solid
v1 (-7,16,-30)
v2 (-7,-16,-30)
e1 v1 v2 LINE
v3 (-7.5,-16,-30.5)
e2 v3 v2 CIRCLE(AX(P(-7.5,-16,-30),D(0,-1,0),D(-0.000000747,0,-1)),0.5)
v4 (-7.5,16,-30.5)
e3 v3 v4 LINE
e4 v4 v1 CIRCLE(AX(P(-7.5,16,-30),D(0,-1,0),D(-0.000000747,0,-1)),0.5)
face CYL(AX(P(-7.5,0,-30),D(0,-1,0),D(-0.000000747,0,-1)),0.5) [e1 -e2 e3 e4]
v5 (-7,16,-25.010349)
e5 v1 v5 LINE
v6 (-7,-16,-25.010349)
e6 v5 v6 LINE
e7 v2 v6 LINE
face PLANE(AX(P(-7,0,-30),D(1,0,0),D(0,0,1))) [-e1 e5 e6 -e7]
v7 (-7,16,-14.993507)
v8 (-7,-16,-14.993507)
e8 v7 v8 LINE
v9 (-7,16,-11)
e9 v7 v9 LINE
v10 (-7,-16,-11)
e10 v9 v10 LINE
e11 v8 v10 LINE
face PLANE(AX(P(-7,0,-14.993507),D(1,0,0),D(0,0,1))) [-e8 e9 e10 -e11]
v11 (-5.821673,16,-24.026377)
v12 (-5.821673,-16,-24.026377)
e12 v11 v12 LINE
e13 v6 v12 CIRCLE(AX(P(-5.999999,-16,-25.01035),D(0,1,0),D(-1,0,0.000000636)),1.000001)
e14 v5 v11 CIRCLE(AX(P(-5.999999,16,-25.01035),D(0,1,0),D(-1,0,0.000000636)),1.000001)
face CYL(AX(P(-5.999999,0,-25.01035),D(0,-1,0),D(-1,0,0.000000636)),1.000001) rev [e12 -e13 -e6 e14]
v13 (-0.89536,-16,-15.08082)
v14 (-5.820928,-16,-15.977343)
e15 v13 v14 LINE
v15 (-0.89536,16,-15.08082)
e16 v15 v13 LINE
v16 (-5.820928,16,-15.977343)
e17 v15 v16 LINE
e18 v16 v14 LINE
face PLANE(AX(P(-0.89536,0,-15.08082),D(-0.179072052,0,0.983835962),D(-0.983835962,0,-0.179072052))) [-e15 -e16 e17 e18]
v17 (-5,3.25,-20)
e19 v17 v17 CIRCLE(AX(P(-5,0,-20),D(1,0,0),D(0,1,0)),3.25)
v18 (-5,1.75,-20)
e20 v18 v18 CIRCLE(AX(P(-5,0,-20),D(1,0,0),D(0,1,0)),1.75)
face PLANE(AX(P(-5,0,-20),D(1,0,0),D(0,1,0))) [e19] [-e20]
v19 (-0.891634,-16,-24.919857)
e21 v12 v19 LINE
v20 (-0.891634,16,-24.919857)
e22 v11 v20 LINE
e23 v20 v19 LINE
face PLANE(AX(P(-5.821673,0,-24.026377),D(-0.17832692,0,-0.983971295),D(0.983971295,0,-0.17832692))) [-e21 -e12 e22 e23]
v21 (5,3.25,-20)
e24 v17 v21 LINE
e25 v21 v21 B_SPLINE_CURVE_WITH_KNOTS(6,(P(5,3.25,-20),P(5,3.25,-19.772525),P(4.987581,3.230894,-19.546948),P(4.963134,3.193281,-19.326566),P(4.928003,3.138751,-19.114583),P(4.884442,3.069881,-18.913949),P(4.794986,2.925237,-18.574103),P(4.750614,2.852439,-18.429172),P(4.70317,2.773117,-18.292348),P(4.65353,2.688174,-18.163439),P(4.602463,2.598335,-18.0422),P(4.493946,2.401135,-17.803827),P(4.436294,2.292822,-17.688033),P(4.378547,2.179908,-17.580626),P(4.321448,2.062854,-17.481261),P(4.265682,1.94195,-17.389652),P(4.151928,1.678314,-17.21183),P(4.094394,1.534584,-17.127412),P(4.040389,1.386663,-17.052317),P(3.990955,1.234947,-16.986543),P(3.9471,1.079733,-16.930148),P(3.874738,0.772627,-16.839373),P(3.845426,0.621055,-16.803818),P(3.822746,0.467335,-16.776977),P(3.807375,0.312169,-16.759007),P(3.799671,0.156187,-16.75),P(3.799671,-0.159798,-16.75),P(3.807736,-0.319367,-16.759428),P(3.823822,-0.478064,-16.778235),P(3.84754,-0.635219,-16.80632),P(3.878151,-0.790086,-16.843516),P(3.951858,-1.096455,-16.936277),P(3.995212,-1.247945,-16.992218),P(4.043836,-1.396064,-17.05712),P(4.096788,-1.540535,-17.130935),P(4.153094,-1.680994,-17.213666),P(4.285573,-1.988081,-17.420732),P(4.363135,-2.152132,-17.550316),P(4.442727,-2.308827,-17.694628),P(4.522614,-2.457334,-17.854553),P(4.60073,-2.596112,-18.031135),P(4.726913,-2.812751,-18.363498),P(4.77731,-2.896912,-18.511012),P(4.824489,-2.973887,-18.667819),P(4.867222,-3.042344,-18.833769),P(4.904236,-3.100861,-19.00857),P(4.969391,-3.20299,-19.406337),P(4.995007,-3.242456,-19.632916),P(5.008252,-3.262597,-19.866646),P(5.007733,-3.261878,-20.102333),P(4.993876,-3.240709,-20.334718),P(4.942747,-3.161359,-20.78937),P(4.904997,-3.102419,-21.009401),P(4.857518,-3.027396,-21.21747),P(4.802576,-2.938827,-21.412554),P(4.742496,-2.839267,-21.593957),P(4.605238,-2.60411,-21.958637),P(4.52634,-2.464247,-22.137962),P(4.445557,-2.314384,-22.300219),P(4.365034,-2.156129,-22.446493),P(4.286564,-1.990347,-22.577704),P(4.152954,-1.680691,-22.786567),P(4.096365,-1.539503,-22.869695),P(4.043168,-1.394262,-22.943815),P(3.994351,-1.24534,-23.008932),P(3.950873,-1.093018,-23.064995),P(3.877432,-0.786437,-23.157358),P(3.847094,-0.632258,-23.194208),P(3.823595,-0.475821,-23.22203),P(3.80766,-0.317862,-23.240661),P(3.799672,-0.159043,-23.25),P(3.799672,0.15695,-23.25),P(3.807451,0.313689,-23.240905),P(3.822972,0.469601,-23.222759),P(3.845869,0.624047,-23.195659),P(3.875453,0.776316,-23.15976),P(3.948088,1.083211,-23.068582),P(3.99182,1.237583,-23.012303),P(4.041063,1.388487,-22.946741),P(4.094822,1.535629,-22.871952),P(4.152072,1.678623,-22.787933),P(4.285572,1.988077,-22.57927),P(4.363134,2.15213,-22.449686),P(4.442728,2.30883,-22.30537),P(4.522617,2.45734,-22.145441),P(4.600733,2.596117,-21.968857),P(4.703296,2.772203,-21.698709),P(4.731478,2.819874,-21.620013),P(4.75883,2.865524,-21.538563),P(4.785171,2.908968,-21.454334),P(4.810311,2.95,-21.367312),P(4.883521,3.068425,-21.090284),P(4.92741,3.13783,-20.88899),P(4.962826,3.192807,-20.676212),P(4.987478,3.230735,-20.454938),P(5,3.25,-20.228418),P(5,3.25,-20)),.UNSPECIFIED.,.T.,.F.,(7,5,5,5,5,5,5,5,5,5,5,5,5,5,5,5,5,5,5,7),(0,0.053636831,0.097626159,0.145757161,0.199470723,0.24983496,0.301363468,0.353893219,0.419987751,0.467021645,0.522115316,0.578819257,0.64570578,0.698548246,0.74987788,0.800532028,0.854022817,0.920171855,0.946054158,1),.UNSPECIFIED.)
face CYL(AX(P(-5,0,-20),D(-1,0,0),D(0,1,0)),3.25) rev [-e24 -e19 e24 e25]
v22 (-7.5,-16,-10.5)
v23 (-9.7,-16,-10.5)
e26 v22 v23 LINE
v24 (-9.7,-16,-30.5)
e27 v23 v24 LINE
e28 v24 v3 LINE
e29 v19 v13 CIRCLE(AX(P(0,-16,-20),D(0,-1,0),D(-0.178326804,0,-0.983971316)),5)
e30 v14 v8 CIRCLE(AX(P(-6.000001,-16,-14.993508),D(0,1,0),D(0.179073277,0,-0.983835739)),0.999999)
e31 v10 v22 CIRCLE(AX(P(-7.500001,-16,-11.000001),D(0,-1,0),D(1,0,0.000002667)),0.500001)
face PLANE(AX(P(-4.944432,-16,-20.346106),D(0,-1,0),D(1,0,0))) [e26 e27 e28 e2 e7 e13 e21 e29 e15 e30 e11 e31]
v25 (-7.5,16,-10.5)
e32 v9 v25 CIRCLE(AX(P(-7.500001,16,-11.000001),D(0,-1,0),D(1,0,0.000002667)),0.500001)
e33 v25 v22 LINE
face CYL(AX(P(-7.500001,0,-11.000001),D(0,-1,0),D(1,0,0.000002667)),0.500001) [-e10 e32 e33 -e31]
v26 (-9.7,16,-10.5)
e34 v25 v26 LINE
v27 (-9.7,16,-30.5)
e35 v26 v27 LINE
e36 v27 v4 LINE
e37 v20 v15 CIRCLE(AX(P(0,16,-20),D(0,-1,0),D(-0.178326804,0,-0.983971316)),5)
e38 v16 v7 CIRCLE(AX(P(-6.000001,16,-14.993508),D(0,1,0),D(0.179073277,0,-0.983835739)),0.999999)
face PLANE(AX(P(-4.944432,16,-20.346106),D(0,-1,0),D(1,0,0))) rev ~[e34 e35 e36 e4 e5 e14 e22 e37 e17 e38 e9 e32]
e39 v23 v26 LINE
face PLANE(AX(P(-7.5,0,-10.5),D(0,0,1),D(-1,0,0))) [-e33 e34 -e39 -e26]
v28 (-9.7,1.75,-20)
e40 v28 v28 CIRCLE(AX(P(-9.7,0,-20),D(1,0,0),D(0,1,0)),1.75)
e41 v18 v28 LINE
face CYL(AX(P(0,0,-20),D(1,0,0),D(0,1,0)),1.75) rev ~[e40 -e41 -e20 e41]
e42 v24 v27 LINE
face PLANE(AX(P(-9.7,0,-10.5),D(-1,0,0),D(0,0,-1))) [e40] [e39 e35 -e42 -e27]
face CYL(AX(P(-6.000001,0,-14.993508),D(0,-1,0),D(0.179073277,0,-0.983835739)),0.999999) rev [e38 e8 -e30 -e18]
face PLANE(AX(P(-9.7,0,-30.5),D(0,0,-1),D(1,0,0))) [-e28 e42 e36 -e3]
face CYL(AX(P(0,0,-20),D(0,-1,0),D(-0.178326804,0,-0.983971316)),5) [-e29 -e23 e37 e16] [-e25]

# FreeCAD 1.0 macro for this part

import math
import FreeCAD as App
import Part
import Sketcher

doc = App.newDocument("Part")
params = doc.addObject("Spreadsheet::Sheet", "Params")
for row, (alias, value) in enumerate([
    ("sketch1_radius", "1.000001 mm"),
    ("sketch1_radius2", "5 mm"),
    ("sketch1_radius3", "0.999999 mm"),
    ("sketch1_radius4", "0.5 mm"),
    ("sketch1_height", "20 mm"),
    ("pad1_length", "32 mm"),
    ("sketch2_diameter", "3.5 mm"),
    ("sketch3_diameter", "6.5 mm"),
], start=1):
    params.set(f"A{row}", alias)
    params.set(f"B{row}", "=" + value)
    params.setAlias(f"B{row}", alias)

body = doc.addObject("PartDesign::Body", "Body")

# Sketch on XZ plane
sketch1 = body.newObject("Sketcher::SketchObject", "Sketch")
sketch1.AttachmentSupport = (doc.getObject("XZ_Plane"), [""])
sketch1.MapMode = "FlatFace"
sketch1.addGeometry([
    Part.ArcOfCircle(Part.Circle(App.Vector(-7.5, -30, 0), App.Vector(0, 0, 1), 0.5), math.radians(-90.000043), math.radians(0.000043)),  # 0
    Part.LineSegment(App.Vector(-7, -30, 0), App.Vector(-7, -25.010349, 0)),  # 1
    Part.ArcOfCircle(Part.Circle(App.Vector(-5.999999, -25.01035, 0), App.Vector(0, 0, 1), 1.000001), math.radians(79.72775), math.radians(179.999964)),  # 2
    Part.LineSegment(App.Vector(-5.821673, -24.026377, 0), App.Vector(-0.891634, -24.919857, 0)),  # 3
    Part.ArcOfCircle(Part.Circle(App.Vector(0, -20, 0), App.Vector(0, 0, 1), 5), math.radians(-100.272316), math.radians(100.315711)),  # 4
    Part.LineSegment(App.Vector(-0.89536, -15.08082, 0), App.Vector(-5.820928, -15.977343, 0)),  # 5
    Part.ArcOfCircle(Part.Circle(App.Vector(-6.000001, -14.993508, 0), App.Vector(0, 0, 1), 0.999999), math.radians(179.999924), math.radians(280.315785)),  # 6
    Part.LineSegment(App.Vector(-7, -14.993507, 0), App.Vector(-7, -11, 0)),  # 7
    Part.ArcOfCircle(Part.Circle(App.Vector(-7.500001, -11.000001, 0), App.Vector(0, 0, 1), 0.500001), math.radians(0.000153), math.radians(89.999847)),  # 8
    Part.LineSegment(App.Vector(-7.5, -10.5, 0), App.Vector(-9.7, -10.5, 0)),  # 9
    Part.LineSegment(App.Vector(-9.7, -10.5, 0), App.Vector(-9.7, -30.5, 0)),  # 10
    Part.LineSegment(App.Vector(-9.7, -30.5, 0), App.Vector(-7.5, -30.5, 0)),  # 11
], False)
sketch1.addConstraint([
    Sketcher.Constraint("Tangent", 0, 2, 1, 1),
    Sketcher.Constraint("Tangent", 1, 2, 2, 2),
    Sketcher.Constraint("Tangent", 2, 1, 3, 1),
    Sketcher.Constraint("Tangent", 3, 2, 4, 1),
    Sketcher.Constraint("Tangent", 4, 2, 5, 1),
    Sketcher.Constraint("Tangent", 5, 2, 6, 2),
    Sketcher.Constraint("Tangent", 6, 1, 7, 1),
    Sketcher.Constraint("Coincident", 7, 2, 8, 1),
    Sketcher.Constraint("Coincident", 8, 2, 9, 1),
    Sketcher.Constraint("Coincident", 9, 2, 10, 1),
    Sketcher.Constraint("Coincident", 10, 2, 11, 1),
    Sketcher.Constraint("Tangent", 11, 2, 0, 1),
    Sketcher.Constraint("Vertical", 1),
    Sketcher.Constraint("Vertical", 7),
    Sketcher.Constraint("Horizontal", 9),
    Sketcher.Constraint("Vertical", 10),
    Sketcher.Constraint("Horizontal", 11),
    Sketcher.Constraint("Equal", 0, 8),
    Sketcher.Constraint("PointOnObject", 4, 3, -2),
    Sketcher.Constraint("Horizontal", 8, 3, 7, 2),
    Sketcher.Constraint("Vertical", 0, 3, 8, 3),
    Sketcher.Constraint("Vertical", 0, 3, 8, 2),
    Sketcher.Constraint("Radius", 2, 1.000001),
    Sketcher.Constraint("Radius", 4, 5.0),
    Sketcher.Constraint("Radius", 6, 0.999999),
    Sketcher.Constraint("Radius", 0, 0.5),
    Sketcher.Constraint("DistanceY", 10, 2, 10, 1, 20.0),
    Sketcher.Constraint("DistanceX", 9, 2, 9, 1, 2.2),
    Sketcher.Constraint("DistanceY", 0, 3, -1, 1, 30.0),
    Sketcher.Constraint("DistanceX", 2, 3, -1, 1, 5.999999),
    Sketcher.Constraint("DistanceY", 4, 3, -1, 1, 20.0),
    Sketcher.Constraint("DistanceY", 1, 1, 1, 2, 4.989651),
    Sketcher.Constraint("DistanceY", 7, 1, 7, 2, 3.993507),
])
sketch1.setExpression("Constraints[22]", "Params.sketch1_radius")
sketch1.setExpression("Constraints[23]", "Params.sketch1_radius2")
sketch1.setExpression("Constraints[24]", "Params.sketch1_radius3")
sketch1.setExpression("Constraints[25]", "Params.sketch1_radius4")
sketch1.setExpression("Constraints[26]", "Params.sketch1_height")
pad1 = body.newObject("PartDesign::Pad", "Pad")
pad1.Profile = sketch1
pad1.setExpression("Length", "Params.pad1_length")
pad1.Midplane = True

# Sketch on YZ plane
sketch2 = body.newObject("Sketcher::SketchObject", "Sketch001")
sketch2.AttachmentSupport = (doc.getObject("YZ_Plane"), [""])
sketch2.MapMode = "FlatFace"
sketch2.addGeometry(Part.Circle(App.Vector(0, -20, 0), App.Vector(0, 0, 1), 1.75), False)
sketch2.addConstraint([
    Sketcher.Constraint("PointOnObject", 0, 3, -2),
    Sketcher.Constraint("Diameter", 0, 3.5),
    Sketcher.Constraint("DistanceY", 0, 3, -1, 1, 20.0),
])
sketch2.setExpression("Constraints[1]", "Params.sketch2_diameter")
pocket1 = body.newObject("PartDesign::Pocket", "Pocket")
pocket1.Profile = sketch2
pocket1.Type = "ThroughAll"
pocket1.Midplane = True

# Sketch on YZ plane
sketch3 = body.newObject("Sketcher::SketchObject", "Sketch002")
sketch3.AttachmentSupport = (doc.getObject("YZ_Plane"), [""])
sketch3.MapMode = "FlatFace"
sketch3.AttachmentOffset = App.Placement(App.Vector(0, 0, -5), App.Rotation())
sketch3.addGeometry(Part.Circle(App.Vector(0, -20, 0), App.Vector(0, 0, 1), 3.25), False)
sketch3.addConstraint([
    Sketcher.Constraint("PointOnObject", 0, 3, -2),
    Sketcher.Constraint("Diameter", 0, 6.5),
    Sketcher.Constraint("DistanceY", 0, 3, -1, 1, 20.0),
])
sketch3.setExpression("Constraints[1]", "Params.sketch3_diameter")
pocket2 = body.newObject("PartDesign::Pocket", "Pocket001")
pocket2.Profile = sketch3
pocket2.Type = "ThroughAll"
pocket2.Reversed = True

doc.recompute()
